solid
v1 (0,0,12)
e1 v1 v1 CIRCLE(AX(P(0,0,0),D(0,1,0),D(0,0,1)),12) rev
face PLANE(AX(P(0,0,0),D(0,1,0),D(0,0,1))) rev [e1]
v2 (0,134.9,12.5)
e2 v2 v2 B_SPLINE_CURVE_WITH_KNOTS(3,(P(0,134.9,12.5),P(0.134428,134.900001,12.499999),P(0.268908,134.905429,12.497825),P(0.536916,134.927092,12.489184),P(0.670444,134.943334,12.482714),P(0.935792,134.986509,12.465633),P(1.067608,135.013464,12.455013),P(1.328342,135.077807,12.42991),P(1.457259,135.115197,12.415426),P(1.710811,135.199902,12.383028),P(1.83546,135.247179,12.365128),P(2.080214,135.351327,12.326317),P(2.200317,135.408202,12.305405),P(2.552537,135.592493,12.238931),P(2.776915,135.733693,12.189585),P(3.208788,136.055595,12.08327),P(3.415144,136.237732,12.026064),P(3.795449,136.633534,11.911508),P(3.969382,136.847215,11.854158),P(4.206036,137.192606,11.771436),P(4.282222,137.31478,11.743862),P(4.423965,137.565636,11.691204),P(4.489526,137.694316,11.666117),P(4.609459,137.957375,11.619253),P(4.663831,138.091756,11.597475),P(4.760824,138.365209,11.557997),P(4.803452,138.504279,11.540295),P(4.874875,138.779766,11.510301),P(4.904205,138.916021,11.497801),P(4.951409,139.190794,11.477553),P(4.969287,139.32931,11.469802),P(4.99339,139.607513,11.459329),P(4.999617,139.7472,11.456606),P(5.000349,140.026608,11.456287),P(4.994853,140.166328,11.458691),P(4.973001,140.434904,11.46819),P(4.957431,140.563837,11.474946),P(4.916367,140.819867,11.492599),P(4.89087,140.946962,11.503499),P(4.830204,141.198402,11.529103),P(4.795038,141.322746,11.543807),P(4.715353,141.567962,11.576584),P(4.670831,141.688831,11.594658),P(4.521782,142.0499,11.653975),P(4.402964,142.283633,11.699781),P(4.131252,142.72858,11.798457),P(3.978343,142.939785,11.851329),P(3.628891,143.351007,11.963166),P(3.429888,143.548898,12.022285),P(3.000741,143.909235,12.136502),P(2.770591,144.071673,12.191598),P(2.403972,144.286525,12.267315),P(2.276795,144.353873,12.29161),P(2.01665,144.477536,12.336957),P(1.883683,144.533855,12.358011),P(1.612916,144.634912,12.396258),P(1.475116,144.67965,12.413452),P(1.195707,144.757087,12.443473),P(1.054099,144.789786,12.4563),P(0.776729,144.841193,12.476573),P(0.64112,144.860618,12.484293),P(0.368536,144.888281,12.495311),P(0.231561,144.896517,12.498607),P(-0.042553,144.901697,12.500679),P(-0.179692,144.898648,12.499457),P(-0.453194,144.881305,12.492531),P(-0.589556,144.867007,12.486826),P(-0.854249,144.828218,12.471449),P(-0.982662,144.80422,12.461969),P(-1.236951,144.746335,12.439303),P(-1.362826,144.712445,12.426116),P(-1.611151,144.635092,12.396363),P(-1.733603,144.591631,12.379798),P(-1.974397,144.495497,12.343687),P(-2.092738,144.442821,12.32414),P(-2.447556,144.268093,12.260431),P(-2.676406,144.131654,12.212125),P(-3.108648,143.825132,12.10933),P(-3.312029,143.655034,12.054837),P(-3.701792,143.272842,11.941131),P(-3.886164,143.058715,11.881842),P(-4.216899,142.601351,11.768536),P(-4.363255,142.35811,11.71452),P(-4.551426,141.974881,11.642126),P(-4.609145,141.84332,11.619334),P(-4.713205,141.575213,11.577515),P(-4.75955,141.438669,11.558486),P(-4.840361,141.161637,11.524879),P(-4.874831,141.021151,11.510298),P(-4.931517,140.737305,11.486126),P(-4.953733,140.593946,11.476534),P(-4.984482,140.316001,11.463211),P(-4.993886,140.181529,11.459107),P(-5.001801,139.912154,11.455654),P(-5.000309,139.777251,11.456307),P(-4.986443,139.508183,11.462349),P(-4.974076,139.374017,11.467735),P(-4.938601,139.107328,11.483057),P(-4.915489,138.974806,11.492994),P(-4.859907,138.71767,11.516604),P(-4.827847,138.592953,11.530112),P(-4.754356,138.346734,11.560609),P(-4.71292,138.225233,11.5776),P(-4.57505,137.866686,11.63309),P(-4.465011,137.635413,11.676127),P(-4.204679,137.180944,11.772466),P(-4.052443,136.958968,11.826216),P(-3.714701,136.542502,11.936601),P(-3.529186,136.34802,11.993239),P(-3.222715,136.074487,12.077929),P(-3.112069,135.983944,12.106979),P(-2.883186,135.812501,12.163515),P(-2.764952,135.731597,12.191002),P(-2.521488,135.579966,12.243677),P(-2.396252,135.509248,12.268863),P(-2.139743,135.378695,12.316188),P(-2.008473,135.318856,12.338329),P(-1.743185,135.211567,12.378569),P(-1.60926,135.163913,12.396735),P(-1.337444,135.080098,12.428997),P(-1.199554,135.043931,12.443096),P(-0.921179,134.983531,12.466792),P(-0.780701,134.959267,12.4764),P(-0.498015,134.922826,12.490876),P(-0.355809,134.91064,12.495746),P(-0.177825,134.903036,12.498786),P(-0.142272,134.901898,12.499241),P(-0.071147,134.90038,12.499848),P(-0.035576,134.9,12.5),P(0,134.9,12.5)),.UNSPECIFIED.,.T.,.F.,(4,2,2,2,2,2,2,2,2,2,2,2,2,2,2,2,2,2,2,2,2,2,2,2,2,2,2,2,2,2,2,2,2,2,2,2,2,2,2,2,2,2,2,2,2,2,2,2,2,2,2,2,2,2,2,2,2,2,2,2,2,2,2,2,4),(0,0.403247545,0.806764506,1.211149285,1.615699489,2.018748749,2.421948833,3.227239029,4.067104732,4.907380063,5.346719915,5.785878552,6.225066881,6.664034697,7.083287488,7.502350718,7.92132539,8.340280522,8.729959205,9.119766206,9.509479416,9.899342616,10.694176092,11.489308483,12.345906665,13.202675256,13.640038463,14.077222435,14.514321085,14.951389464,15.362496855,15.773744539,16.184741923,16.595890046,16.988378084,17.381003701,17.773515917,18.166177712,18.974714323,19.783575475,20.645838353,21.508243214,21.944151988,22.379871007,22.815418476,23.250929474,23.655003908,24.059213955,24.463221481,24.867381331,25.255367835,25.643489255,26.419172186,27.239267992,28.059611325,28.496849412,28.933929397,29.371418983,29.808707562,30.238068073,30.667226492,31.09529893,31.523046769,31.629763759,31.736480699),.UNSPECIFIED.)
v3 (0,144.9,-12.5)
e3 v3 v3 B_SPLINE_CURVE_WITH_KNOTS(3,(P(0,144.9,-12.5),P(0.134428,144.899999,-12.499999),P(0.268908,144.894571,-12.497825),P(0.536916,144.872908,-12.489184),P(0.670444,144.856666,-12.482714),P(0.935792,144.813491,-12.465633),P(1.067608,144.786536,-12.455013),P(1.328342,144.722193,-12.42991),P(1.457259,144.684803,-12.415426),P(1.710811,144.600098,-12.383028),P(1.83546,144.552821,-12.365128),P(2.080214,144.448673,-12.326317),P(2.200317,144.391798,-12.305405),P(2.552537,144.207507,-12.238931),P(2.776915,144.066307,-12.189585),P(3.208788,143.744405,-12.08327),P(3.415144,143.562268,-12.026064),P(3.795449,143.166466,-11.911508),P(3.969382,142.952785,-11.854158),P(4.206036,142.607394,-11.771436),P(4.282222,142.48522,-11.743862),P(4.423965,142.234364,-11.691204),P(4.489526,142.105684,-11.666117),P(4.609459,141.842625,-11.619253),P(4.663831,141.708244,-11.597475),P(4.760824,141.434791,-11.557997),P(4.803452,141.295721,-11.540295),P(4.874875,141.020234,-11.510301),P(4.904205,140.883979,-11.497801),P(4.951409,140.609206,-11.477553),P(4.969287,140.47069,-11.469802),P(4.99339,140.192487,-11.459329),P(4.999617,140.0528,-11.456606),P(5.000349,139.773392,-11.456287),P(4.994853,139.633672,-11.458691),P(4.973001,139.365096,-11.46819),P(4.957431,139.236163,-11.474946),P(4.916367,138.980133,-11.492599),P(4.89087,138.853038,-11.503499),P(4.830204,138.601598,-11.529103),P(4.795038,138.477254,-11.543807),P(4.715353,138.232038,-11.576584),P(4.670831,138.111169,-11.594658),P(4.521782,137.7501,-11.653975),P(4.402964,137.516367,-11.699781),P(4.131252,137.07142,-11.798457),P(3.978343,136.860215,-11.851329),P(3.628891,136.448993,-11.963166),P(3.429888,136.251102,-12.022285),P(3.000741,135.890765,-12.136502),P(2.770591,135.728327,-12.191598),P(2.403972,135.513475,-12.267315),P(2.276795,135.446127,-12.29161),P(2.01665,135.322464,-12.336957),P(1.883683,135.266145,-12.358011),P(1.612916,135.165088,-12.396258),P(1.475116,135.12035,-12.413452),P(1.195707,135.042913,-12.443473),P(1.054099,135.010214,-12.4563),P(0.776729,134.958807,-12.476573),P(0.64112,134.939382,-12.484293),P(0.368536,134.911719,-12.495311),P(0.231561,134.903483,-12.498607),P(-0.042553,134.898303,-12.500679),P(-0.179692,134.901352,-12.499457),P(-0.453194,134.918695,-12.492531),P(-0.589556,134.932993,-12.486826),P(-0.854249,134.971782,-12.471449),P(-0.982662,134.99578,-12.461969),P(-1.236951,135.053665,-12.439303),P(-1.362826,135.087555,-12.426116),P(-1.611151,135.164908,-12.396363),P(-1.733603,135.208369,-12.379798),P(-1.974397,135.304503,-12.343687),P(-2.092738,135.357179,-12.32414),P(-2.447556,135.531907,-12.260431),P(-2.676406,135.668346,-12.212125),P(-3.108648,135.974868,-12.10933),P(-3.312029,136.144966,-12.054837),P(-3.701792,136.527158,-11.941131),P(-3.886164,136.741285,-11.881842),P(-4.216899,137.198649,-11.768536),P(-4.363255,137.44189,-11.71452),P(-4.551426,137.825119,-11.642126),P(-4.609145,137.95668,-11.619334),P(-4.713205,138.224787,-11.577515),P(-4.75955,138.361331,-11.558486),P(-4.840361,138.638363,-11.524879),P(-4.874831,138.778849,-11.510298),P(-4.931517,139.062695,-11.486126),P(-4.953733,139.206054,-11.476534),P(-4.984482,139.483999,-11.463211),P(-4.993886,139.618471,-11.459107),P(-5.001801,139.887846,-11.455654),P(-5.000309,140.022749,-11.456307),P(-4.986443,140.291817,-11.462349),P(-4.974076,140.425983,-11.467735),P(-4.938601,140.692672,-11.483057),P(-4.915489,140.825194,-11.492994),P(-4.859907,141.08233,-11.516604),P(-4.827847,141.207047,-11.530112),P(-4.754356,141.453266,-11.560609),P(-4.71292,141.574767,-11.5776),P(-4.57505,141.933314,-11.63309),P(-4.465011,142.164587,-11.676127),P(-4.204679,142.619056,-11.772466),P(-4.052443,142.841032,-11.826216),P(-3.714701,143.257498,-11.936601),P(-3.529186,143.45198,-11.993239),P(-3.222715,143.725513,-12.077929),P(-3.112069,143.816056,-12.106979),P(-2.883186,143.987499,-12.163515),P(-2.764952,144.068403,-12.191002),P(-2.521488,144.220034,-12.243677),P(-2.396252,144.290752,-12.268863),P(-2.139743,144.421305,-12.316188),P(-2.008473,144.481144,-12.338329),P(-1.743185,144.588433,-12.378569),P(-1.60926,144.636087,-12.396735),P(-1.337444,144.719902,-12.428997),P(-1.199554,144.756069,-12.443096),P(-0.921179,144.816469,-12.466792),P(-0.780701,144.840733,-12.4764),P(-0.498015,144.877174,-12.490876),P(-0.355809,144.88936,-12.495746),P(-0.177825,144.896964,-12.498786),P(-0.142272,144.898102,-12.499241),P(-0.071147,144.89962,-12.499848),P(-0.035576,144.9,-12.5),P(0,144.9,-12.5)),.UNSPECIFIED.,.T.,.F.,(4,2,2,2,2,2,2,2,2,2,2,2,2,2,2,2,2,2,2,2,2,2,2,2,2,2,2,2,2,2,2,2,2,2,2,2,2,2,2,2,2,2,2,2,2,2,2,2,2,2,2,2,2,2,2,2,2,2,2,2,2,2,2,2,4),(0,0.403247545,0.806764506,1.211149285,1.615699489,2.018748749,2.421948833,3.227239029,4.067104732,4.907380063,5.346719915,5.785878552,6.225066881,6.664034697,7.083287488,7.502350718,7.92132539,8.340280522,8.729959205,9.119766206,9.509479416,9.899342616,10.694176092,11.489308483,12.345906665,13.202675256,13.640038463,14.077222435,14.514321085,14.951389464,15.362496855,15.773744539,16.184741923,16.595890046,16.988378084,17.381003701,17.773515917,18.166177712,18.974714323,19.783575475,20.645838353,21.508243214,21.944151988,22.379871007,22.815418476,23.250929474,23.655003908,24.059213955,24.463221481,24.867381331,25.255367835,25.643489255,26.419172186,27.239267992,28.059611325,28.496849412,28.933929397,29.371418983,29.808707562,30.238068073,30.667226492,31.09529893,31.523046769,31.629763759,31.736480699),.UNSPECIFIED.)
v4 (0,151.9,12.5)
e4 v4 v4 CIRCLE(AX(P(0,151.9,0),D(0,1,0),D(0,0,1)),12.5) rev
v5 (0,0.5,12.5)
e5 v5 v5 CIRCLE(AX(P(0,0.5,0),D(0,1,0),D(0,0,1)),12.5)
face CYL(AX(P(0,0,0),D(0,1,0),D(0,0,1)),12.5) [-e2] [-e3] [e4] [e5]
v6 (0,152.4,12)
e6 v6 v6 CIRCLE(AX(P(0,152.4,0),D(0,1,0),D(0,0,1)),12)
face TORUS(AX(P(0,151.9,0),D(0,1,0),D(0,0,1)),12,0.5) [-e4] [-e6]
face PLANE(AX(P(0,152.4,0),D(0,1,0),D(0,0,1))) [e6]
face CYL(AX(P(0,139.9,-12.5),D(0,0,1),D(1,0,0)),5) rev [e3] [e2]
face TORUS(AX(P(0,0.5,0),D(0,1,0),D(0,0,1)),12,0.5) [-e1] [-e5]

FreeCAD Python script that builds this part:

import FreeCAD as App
import Part
import Sketcher


def edges_at(feature, points):
    """Names of the edges that pass closest to the given points."""
    edges = feature.Shape.Edges
    near = lambda p: min(range(len(edges)), key=lambda i: edges[i].distToShape(Part.Vertex(*p))[0])
    return sorted({f"Edge{near(p) + 1}" for p in points})

doc = App.newDocument("Part")
body = doc.addObject("PartDesign::Body", "Body")

# Sketch on XZ plane
sketch1 = body.newObject("Sketcher::SketchObject", "Sketch")
sketch1.AttachmentSupport = (doc.getObject("XZ_Plane"), [""])
sketch1.MapMode = "FlatFace"
sketch1.addGeometry(Part.Circle(App.Vector(0, 0, 0), App.Vector(0, 0, 1), 12.5), False)
sketch1.addConstraint([
    Sketcher.Constraint("Coincident", 0, 3, -1, 1),
    Sketcher.Constraint("Diameter", 0, 25.0),
])

# Sketch on XY plane
sketch2 = body.newObject("Sketcher::SketchObject", "Sketch001")
sketch2.AttachmentSupport = (doc.getObject("XY_Plane"), [""])
sketch2.MapMode = "FlatFace"
sketch2.addGeometry(Part.LineSegment(App.Vector(0, 0, 0), App.Vector(0, 152.4, 0)), False)
sketch2.addConstraint([
    Sketcher.Constraint("Vertical", 0),
    Sketcher.Constraint("Coincident", 0, 1, -1, 1),
    Sketcher.Constraint("DistanceY", 0, 1, 0, 2, 152.4),
])
doc.recompute()

additivepipe = body.newObject("PartDesign::AdditivePipe", "AdditivePipe")
additivepipe.Profile = sketch1
additivepipe.Spine = (sketch2, ["Edge1"])

# Sketch on XY plane
sketch3 = body.newObject("Sketcher::SketchObject", "Sketch002")
sketch3.AttachmentSupport = (doc.getObject("XY_Plane"), [""])
sketch3.MapMode = "FlatFace"
sketch3.addGeometry(Part.Circle(App.Vector(0, 139.9, 0), App.Vector(0, 0, 1), 5), False)
sketch3.addConstraint([
    Sketcher.Constraint("PointOnObject", 0, 3, -2),
    Sketcher.Constraint("Diameter", 0, 10.0),
    Sketcher.Constraint("DistanceY", -1, 1, 0, 3, 139.9),
])
pocket1 = body.newObject("PartDesign::Pocket", "Pocket")
pocket1.Profile = sketch3
pocket1.Type = "ThroughAll"
pocket1.Midplane = True
doc.recompute()

fillet = body.newObject("PartDesign::Fillet", "Fillet")
fillet.Base = (pocket1, edges_at(pocket1, [(0, 0, -12.5), (0, 152.4, -12.5)]))
fillet.Radius = 0.5

doc.recompute()
